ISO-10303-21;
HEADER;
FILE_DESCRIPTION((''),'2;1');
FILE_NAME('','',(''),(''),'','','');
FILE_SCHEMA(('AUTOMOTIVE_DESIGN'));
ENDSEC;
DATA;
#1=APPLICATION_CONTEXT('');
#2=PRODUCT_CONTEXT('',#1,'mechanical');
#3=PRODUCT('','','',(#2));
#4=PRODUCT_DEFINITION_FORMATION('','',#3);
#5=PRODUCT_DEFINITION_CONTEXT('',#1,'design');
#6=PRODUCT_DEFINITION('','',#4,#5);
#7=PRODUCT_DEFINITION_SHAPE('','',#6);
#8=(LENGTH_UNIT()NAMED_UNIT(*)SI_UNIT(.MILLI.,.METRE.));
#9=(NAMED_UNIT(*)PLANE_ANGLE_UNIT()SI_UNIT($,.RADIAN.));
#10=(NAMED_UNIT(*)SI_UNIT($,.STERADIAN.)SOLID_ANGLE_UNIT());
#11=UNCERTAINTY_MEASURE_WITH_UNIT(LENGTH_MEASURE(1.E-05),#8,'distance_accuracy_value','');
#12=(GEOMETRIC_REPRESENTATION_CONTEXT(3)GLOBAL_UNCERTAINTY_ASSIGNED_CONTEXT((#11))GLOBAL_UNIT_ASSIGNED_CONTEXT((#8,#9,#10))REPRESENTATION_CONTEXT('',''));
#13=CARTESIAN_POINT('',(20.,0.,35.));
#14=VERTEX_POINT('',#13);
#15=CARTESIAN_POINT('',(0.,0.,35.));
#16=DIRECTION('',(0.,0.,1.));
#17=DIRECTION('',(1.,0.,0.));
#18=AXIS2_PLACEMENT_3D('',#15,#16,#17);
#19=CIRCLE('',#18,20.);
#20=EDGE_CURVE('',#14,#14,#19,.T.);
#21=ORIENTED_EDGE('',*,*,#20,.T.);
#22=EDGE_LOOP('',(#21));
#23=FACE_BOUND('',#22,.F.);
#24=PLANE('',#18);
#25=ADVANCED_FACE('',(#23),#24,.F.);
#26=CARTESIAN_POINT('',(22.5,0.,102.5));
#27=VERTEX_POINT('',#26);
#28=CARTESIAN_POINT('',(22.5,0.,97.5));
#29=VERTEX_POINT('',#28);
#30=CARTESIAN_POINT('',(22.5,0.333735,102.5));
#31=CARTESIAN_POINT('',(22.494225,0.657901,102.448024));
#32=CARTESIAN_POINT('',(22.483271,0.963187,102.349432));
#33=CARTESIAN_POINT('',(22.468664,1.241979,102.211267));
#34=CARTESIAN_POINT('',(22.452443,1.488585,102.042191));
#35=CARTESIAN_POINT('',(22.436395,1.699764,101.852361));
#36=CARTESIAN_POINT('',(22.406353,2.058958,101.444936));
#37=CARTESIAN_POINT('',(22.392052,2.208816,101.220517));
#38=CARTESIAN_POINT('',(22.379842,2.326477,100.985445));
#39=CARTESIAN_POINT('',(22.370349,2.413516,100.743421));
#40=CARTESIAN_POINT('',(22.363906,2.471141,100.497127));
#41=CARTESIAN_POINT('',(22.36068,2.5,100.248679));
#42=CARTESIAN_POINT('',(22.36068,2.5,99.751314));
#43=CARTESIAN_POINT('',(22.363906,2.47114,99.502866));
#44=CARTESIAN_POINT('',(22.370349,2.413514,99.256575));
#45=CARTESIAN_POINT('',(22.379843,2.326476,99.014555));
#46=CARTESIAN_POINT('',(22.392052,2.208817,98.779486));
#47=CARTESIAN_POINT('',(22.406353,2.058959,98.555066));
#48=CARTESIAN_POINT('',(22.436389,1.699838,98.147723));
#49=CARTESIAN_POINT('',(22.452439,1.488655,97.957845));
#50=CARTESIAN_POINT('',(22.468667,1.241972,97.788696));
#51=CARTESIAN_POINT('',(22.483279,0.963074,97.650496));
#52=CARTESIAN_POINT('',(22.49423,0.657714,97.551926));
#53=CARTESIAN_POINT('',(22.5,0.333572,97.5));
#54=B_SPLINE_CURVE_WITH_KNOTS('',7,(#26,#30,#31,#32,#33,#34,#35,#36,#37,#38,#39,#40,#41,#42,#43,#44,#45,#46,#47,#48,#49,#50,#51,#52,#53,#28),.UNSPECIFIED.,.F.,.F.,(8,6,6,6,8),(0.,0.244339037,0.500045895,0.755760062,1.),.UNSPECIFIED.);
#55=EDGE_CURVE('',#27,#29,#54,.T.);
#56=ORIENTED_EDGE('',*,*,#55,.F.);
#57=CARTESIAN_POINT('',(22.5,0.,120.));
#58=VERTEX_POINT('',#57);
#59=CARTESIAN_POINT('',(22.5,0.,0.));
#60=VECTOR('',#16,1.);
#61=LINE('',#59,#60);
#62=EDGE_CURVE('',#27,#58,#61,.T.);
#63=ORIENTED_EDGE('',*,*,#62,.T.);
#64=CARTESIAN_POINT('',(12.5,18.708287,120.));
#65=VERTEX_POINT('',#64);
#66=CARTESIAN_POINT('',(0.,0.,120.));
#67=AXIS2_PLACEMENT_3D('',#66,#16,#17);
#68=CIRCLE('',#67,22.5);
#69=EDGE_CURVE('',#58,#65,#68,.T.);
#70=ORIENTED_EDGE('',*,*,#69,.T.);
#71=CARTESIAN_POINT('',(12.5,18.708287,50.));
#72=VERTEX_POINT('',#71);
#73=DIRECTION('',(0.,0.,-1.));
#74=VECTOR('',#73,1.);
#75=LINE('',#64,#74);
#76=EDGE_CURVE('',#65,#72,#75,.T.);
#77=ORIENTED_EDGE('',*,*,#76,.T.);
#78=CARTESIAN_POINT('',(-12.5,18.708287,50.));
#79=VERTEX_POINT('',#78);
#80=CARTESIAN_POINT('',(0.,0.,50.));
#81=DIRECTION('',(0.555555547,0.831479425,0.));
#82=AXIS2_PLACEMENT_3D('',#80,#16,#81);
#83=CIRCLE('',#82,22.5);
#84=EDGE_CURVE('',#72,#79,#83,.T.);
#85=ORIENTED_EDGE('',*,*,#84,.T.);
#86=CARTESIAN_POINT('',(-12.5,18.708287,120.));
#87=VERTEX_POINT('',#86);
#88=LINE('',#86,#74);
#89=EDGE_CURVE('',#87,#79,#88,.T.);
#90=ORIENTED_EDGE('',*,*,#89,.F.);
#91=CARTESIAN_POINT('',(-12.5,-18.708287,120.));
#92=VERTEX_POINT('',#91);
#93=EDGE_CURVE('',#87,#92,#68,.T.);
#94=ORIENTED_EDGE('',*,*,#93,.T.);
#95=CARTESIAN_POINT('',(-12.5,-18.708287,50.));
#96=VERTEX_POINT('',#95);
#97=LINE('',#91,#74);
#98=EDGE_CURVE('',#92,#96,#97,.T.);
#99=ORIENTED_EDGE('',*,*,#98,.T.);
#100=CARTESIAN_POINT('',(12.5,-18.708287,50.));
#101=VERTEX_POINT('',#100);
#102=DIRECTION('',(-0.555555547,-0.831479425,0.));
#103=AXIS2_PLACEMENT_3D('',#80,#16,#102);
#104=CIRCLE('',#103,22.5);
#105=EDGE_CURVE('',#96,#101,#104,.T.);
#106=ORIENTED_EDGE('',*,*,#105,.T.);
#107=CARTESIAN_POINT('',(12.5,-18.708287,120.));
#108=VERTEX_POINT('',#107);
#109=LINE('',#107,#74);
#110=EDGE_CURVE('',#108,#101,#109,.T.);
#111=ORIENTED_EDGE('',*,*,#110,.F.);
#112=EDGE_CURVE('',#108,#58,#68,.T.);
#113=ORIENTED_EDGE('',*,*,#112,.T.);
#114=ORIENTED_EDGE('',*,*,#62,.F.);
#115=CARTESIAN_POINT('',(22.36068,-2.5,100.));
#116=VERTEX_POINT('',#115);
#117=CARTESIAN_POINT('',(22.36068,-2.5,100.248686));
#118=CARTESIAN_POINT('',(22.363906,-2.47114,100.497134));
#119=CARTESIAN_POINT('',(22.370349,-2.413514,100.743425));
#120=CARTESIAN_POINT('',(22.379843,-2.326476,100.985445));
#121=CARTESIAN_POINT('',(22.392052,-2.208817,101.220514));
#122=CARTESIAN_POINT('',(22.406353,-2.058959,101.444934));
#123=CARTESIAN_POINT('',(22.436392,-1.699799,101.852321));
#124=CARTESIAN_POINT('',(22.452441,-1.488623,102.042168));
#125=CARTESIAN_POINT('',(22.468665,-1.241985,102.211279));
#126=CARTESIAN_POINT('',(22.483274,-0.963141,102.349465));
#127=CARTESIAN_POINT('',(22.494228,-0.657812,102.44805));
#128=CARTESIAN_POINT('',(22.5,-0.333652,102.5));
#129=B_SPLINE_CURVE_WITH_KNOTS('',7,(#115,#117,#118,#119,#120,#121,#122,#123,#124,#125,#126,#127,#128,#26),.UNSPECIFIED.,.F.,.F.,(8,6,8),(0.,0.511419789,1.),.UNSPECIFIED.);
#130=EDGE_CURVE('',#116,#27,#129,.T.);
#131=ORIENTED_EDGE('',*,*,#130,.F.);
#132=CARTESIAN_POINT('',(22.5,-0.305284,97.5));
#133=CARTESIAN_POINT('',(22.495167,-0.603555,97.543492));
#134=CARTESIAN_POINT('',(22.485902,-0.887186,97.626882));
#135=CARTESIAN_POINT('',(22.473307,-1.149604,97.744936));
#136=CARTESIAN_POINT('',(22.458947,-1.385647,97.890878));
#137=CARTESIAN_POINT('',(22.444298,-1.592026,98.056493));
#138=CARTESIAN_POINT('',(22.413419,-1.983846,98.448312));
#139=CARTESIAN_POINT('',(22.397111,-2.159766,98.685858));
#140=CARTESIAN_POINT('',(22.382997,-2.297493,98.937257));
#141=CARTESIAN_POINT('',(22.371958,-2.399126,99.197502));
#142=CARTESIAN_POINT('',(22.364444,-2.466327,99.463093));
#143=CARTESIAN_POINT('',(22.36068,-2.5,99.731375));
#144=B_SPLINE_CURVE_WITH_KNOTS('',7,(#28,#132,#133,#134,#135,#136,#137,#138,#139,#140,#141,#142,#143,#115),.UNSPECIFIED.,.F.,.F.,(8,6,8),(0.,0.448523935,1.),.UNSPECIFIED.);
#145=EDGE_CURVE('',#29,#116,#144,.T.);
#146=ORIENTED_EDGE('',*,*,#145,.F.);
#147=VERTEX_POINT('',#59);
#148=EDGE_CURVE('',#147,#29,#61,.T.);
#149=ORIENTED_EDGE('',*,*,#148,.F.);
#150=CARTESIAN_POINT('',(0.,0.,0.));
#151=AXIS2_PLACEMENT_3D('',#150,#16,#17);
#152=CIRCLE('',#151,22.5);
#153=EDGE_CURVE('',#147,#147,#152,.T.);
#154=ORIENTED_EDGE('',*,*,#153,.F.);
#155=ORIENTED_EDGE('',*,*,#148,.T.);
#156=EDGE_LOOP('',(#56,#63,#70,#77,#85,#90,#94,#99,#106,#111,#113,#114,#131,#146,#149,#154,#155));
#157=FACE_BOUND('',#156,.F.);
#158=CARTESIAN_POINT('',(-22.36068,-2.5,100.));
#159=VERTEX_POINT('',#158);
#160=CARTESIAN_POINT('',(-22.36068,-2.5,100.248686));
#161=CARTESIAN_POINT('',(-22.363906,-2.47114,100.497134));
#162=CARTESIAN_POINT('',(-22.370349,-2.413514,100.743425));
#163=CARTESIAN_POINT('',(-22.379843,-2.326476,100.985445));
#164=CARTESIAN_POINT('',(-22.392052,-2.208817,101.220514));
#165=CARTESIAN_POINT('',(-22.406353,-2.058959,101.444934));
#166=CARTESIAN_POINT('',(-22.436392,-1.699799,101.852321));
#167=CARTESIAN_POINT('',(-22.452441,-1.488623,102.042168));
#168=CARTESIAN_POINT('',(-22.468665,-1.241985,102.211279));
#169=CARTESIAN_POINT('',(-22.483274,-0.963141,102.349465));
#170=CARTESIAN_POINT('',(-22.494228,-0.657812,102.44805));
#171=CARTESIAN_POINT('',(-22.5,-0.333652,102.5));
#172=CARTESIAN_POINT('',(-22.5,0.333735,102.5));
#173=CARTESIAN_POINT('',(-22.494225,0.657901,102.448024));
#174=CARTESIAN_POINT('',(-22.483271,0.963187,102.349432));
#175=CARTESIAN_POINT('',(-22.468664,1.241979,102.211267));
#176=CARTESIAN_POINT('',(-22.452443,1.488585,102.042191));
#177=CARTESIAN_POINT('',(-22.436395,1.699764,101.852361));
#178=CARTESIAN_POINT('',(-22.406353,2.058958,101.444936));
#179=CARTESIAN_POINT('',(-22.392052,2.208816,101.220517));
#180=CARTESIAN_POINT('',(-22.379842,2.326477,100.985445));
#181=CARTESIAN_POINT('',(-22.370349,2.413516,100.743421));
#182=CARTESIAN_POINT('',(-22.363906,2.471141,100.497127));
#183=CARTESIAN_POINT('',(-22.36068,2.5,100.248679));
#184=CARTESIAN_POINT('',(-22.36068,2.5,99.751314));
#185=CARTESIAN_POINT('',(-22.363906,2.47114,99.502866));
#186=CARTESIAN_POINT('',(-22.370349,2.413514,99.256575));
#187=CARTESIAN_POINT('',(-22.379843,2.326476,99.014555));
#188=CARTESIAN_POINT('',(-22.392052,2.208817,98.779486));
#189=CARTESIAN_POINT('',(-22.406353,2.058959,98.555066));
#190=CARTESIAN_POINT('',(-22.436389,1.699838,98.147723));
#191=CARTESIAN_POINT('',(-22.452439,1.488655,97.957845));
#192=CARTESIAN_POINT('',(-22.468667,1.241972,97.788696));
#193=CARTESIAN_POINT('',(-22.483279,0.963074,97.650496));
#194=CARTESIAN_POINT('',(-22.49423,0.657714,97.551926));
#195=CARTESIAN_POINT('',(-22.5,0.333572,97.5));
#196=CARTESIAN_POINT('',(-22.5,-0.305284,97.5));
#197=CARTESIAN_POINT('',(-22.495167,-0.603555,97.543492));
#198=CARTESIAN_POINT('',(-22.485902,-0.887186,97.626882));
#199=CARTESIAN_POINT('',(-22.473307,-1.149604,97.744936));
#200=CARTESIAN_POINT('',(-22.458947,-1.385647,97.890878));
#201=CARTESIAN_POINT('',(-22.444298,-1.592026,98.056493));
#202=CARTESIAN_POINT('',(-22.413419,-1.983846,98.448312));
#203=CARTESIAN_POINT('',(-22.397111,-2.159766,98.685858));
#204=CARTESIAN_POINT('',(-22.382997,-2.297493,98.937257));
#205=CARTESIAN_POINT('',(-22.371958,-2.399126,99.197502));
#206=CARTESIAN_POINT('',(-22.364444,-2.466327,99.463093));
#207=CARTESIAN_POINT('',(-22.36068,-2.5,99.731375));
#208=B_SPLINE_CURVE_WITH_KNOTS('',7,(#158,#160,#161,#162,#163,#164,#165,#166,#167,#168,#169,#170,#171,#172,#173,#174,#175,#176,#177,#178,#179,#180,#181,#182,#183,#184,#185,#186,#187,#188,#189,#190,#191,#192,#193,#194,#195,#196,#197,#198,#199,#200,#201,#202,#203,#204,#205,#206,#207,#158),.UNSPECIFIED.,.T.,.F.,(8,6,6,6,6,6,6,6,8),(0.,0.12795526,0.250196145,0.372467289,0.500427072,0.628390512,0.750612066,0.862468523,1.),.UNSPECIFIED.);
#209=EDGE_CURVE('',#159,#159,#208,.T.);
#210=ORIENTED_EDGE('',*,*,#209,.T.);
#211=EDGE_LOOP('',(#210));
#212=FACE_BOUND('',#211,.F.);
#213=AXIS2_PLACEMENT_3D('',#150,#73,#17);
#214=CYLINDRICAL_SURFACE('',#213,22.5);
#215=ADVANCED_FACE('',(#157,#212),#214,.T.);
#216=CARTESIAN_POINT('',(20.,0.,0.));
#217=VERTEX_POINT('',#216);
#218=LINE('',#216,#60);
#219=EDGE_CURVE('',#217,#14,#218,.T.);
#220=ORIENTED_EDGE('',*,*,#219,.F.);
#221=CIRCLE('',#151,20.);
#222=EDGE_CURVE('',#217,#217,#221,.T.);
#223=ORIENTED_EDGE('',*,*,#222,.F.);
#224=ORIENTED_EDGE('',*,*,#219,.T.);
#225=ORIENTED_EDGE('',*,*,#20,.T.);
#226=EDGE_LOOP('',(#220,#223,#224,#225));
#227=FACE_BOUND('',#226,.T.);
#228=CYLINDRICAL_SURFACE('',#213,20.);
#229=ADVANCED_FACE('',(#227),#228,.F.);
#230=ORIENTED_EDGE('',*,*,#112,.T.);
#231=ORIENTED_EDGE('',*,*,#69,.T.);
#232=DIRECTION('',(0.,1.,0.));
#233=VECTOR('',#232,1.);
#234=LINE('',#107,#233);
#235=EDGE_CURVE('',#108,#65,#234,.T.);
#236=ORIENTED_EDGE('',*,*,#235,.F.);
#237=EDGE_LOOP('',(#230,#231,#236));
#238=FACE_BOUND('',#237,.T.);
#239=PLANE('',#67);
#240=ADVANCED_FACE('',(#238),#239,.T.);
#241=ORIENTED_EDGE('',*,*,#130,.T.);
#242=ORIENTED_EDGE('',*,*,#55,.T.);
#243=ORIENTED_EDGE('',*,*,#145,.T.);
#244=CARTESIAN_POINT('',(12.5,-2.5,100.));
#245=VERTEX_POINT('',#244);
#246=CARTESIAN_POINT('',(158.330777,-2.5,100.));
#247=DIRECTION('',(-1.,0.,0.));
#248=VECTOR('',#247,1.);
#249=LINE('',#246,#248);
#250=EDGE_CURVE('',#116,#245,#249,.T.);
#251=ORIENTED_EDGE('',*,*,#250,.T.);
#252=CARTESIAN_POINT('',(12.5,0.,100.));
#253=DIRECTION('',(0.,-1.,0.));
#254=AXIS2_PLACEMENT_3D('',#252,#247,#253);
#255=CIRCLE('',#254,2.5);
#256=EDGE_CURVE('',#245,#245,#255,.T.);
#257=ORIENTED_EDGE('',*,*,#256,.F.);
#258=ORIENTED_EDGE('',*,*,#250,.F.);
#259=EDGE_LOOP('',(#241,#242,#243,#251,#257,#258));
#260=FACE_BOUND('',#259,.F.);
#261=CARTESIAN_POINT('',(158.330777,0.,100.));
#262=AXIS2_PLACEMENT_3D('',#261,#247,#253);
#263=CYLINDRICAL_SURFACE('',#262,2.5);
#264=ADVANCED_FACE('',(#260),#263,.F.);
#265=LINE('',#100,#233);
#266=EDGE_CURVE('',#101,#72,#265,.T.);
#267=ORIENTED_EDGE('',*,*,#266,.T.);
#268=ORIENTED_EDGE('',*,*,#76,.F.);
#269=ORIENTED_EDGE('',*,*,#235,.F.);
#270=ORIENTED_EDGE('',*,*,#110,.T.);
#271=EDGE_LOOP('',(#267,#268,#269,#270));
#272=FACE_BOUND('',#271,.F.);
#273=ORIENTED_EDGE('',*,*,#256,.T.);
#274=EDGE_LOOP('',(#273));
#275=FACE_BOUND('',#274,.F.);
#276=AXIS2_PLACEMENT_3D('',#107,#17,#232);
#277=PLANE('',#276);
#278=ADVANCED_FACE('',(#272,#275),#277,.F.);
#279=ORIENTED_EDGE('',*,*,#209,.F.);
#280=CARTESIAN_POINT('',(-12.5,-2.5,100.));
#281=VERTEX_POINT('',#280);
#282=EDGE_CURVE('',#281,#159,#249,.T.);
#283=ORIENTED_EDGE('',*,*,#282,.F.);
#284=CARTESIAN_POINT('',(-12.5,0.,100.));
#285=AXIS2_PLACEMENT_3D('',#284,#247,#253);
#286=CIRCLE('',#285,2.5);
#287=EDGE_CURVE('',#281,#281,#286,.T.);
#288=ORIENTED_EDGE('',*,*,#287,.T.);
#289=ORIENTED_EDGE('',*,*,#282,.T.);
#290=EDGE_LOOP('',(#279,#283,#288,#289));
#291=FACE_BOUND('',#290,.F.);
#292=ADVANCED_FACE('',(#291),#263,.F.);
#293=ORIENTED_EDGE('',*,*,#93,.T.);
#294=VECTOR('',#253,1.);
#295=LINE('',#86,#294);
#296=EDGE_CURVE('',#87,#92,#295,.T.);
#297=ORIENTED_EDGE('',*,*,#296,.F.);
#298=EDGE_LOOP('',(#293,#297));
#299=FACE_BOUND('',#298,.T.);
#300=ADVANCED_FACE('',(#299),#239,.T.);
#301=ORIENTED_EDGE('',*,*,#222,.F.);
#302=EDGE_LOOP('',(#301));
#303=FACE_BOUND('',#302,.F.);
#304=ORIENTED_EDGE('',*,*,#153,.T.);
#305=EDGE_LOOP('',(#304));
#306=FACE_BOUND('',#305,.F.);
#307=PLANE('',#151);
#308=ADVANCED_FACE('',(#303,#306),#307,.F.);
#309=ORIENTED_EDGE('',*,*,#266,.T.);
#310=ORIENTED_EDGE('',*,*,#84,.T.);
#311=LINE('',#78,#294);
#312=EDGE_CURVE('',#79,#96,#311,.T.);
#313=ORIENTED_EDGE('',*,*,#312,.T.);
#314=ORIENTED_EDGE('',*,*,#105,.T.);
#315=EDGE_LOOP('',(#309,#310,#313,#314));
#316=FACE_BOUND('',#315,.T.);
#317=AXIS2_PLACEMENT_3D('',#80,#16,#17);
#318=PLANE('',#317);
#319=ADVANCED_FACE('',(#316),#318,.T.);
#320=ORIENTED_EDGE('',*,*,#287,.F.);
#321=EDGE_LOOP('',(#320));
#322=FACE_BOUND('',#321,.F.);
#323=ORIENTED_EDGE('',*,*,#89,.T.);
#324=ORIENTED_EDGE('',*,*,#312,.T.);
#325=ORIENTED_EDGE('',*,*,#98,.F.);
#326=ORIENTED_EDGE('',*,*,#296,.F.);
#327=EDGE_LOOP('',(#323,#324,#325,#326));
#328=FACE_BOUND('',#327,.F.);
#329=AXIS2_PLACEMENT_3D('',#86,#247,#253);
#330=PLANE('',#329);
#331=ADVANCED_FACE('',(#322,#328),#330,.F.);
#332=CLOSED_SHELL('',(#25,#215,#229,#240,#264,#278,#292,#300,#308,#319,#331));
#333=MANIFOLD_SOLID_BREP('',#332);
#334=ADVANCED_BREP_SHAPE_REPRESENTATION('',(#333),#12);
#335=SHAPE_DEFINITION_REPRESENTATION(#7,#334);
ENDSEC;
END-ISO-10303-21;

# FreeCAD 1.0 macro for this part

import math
import FreeCAD as App
import Part
import Sketcher

V = App.Vector
Q = App.Units.Quantity

doc = App.newDocument("Part")
body = doc.addObject("PartDesign::Body", "Body")

# Sketch on XY plane
sketch1 = body.newObject("Sketcher::SketchObject", "Sketch")
sketch1.AttachmentSupport = (doc.getObject("XY_Plane"), [""])
sketch1.MapMode = "FlatFace"
sketch1.addGeometry(Part.Circle(V(0, 0, 0), V(0, 0, 1), 22), False)
sketch1.addConstraint([
    Sketcher.Constraint("Coincident", 0, 3, -1, 1),
    Sketcher.Constraint("Diameter", 0, Q("45 mm")),
])
pad1 = body.newObject("PartDesign::Pad", "Pad")
pad1.Profile = sketch1
pad1.Length = 120

# Sketch on XY plane
sketch2 = body.newObject("Sketcher::SketchObject", "Sketch001")
sketch2.AttachmentSupport = (doc.getObject("XY_Plane"), [""])
sketch2.MapMode = "FlatFace"
sketch2.AttachmentOffset = App.Placement(V(0, 0, 120), App.Rotation())
sketch2.addGeometry([
    Part.ArcOfCircle(Part.Circle(V(0, 0, 0), V(0, 0, 1), 23), math.radians(56), math.radians(124)),
    Part.LineSegment(V(-12, 19, 0), V(-12, -19, 0)),
    Part.ArcOfCircle(Part.Circle(V(0, 0, 0), V(0, 0, 1), 23), math.radians(-124), math.radians(-56)),
    Part.LineSegment(V(12, -19, 0), V(12, 19, 0)),
], False)
sketch2.addConstraint([
    Sketcher.Constraint("Coincident", 0, 2, 1, 1),
    Sketcher.Constraint("Coincident", 1, 2, 2, 1),
    Sketcher.Constraint("Coincident", 2, 2, 3, 1),
    Sketcher.Constraint("Coincident", 3, 2, 0, 1),
    Sketcher.Constraint("Vertical", 1),
    Sketcher.Constraint("Vertical", 3),
    Sketcher.Constraint("Coincident", 0, 3, -1, 1),
    Sketcher.Constraint("Coincident", 2, 3, -1, 1),
    Sketcher.Constraint("Equal", 0, 2),
    Sketcher.Constraint("Horizontal", 1, 2, 2, 2),
    Sketcher.Constraint("Radius", 0, Q("22.5 mm")),
    Sketcher.Constraint("DistanceX", 1, 2, 2, 2, Q("25 mm")),
])
pocket1 = body.newObject("PartDesign::Pocket", "Pocket")
pocket1.Profile = sketch2
pocket1.Length = 70

# Sketch on XY plane
sketch3 = body.newObject("Sketcher::SketchObject", "Sketch002")
sketch3.AttachmentSupport = (doc.getObject("XY_Plane"), [""])
sketch3.MapMode = "FlatFace"
sketch3.addGeometry(Part.Circle(V(0, 0, 0), V(0, 0, 1), 20), False)
sketch3.addConstraint([
    Sketcher.Constraint("Coincident", 0, 3, -1, 1),
    Sketcher.Constraint("Diameter", 0, Q("40 mm")),
])
pocket2 = body.newObject("PartDesign::Pocket", "Pocket001")
pocket2.Profile = sketch3
pocket2.Length = 35
pocket2.Reversed = True

# Sketch on YZ plane
sketch4 = body.newObject("Sketcher::SketchObject", "Sketch003")
sketch4.AttachmentSupport = (doc.getObject("YZ_Plane"), [""])
sketch4.MapMode = "FlatFace"
sketch4.AttachmentOffset = App.Placement(V(0, 0, 22.5), App.Rotation())
sketch4.addGeometry(Part.Circle(V(0, 100, 0), V(0, 0, 1), 2.5), False)
sketch4.addConstraint([
    Sketcher.Constraint("PointOnObject", 0, 3, -2),
    Sketcher.Constraint("Diameter", 0, Q("5 mm")),
    Sketcher.Constraint("DistanceY", -1, 1, 0, 3, Q("100 mm")),
])
doc.recompute()
hole = body.newObject("PartDesign::Hole", "Hole")
hole.Profile = sketch4
hole.ThreadType = "None"
hole.Diameter = 5
hole.DepthType = "ThroughAll"

doc.recompute()
